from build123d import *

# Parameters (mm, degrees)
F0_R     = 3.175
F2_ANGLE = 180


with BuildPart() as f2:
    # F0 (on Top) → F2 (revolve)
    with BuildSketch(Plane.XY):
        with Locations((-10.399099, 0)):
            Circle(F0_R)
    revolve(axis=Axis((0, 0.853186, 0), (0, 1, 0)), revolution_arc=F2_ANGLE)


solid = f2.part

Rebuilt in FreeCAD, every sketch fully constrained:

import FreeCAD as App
import Part
import Sketcher
Q = App.Units.Quantity

doc = App.newDocument("Part")
body = doc.addObject("PartDesign::Body", "Body")

sketch1 = body.newObject("Sketcher::SketchObject", "Sketch")
sketch1.AttachmentSupport = (doc.getObject("XY_Plane"), [""])
sketch1.MapMode = "FlatFace"
sketch1.addGeometry(Part.Circle(App.Vector(-10.4, 0, 0), App.Vector(0, 0, 1), 3.2), False)
sketch1.addConstraint(Sketcher.Constraint("PointOnObject", 0, 3, -1))
sketch1.addConstraint(Sketcher.Constraint("Diameter", 0, Q("0.25 in")))
sketch1.addConstraint(Sketcher.Constraint("DistanceX", 0, 3, -1, 1, 10.399099))
revolution = body.newObject("PartDesign::Revolution", "Revolution")
revolution.Profile = sketch1
revolution.ReferenceAxis = (sketch1, ["V_Axis"])
revolution.Angle = 180

doc.recompute()
